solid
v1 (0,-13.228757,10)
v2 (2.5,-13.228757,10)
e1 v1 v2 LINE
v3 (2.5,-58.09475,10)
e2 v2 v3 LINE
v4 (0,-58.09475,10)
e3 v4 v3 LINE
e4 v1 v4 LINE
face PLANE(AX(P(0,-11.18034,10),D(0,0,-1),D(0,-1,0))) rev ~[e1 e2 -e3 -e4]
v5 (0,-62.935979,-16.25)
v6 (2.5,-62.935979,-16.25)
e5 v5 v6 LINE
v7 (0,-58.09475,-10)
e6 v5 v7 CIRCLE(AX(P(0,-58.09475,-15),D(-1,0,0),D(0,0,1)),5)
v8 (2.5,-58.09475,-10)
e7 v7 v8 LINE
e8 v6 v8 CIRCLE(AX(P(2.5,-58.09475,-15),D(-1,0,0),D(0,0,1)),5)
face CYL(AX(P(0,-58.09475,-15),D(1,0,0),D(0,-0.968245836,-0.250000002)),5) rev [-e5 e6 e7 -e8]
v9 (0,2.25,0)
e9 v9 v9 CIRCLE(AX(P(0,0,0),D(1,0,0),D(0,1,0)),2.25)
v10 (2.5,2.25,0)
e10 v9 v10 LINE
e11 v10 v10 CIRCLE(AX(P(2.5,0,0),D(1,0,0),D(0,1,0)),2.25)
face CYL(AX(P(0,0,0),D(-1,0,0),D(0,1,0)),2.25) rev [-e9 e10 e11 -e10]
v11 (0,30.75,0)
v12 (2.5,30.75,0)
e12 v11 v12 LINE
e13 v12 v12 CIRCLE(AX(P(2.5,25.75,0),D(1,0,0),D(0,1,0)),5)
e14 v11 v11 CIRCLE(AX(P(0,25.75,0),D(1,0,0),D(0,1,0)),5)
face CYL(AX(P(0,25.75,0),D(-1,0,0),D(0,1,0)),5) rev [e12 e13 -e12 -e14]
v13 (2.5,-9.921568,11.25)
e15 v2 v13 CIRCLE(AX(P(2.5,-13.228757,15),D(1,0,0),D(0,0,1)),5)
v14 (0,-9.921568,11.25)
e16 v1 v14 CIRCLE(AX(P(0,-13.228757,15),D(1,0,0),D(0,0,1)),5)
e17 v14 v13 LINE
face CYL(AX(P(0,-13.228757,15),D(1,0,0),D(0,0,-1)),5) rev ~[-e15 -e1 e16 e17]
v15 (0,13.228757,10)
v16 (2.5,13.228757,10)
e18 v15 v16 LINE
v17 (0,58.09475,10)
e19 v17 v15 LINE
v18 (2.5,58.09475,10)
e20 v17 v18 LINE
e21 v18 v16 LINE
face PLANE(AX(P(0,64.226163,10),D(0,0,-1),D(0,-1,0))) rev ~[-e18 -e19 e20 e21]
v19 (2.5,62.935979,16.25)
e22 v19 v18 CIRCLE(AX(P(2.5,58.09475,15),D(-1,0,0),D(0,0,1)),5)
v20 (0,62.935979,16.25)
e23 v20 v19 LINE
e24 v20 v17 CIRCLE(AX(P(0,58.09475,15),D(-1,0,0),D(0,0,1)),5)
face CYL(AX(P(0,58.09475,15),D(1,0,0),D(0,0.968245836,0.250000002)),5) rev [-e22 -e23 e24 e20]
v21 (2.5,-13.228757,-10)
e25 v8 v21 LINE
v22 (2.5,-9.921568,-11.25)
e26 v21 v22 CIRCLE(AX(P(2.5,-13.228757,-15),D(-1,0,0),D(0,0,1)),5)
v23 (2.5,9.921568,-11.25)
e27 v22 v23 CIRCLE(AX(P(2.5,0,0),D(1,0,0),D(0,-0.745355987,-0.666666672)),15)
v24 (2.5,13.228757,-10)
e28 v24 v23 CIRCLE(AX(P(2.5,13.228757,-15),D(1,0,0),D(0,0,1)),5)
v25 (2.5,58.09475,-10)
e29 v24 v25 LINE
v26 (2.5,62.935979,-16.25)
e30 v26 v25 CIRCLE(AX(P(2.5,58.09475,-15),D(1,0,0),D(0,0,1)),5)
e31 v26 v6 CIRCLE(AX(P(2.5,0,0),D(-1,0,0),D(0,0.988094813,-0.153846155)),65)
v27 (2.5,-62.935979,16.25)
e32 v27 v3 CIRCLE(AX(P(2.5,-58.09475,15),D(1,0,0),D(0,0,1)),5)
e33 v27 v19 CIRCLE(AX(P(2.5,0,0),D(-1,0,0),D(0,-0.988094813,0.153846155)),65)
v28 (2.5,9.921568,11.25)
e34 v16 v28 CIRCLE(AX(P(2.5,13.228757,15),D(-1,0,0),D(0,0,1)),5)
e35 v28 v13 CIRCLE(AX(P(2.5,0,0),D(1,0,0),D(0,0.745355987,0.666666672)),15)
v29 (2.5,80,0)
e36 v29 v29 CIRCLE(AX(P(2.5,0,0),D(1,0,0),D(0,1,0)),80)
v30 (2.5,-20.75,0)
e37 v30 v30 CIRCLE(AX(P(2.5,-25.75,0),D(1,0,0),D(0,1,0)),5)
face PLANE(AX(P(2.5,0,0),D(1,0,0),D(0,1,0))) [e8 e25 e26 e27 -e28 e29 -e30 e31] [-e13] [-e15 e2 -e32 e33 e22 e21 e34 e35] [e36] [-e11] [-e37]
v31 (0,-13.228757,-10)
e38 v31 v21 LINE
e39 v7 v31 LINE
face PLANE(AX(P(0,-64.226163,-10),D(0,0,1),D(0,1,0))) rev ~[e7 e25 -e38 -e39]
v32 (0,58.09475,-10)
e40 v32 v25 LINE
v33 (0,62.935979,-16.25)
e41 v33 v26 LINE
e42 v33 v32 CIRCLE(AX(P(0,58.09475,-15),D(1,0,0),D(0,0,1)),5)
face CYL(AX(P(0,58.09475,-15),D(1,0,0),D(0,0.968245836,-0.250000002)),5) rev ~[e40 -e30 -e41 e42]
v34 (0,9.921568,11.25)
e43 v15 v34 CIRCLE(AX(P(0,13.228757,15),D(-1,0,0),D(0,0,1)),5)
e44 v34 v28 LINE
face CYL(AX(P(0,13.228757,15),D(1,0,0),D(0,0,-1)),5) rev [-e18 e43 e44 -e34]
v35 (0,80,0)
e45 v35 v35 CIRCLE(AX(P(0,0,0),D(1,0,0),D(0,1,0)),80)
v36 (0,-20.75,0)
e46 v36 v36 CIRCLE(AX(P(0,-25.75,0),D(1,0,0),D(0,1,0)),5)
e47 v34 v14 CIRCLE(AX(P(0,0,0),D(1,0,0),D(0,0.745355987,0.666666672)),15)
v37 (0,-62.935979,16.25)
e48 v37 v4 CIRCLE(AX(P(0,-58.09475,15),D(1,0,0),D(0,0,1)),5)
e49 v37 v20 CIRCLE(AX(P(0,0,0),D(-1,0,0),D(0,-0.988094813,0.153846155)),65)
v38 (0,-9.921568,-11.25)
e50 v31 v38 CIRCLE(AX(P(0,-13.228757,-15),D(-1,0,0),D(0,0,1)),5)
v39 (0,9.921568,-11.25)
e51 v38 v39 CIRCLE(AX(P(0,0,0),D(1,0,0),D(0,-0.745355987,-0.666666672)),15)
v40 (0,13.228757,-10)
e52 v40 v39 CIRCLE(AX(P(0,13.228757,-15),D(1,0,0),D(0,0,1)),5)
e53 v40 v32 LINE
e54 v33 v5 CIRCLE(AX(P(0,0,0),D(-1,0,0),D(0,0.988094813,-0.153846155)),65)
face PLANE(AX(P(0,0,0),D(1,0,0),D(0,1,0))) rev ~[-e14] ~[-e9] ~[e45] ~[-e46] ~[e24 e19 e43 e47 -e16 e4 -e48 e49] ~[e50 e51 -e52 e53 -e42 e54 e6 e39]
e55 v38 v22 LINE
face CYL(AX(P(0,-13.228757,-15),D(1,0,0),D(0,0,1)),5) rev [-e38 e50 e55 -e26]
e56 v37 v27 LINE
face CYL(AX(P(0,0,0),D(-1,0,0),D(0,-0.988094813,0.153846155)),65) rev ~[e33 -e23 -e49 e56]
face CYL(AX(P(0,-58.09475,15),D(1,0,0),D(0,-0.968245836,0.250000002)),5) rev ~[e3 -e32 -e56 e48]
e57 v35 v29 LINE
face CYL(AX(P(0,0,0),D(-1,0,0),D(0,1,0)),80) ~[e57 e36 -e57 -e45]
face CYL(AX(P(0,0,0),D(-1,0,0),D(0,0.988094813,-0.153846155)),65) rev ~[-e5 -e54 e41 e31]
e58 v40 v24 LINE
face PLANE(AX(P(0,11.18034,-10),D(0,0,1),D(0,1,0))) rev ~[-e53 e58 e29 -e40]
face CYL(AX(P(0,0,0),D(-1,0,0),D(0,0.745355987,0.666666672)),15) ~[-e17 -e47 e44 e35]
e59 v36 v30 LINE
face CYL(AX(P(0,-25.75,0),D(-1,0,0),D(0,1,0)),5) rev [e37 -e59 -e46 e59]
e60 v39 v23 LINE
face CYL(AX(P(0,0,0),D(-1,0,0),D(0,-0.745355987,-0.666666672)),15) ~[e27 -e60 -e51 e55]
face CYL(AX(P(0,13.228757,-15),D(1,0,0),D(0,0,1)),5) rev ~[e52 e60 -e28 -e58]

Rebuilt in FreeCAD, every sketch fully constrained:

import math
import FreeCAD as App
import Part
import Sketcher

V = App.Vector


def edges_at(feature, points):
    """Names of the edges that pass closest to the given points."""
    edges = feature.Shape.Edges
    near = lambda p: min(range(len(edges)), key=lambda i: edges[i].distToShape(Part.Vertex(*p))[0])
    return sorted({f"Edge{near(p) + 1}" for p in points})

doc = App.newDocument("Part")
params = doc.addObject("Spreadsheet::Sheet", "Params")
for row, (alias, value) in enumerate([
    ("sketch1_diameter", "160 mm"),
    ("sketch1_diameter2", "10 mm"),
    ("sketch1_radius", "65 mm"),
    ("sketch1_radius2", "15 mm"),
    ("sketch1_diameter3", "4.5 mm"),
    ("pad1_length", "2.5 mm"),
    ("fillet_radius", "5 mm"),
], start=1):
    params.set(f"A{row}", alias)
    params.set(f"B{row}", "=" + value)
    params.setAlias(f"B{row}", alias)

body = doc.addObject("PartDesign::Body", "Body")

sketch1 = doc.addObject("Sketcher::SketchObject", "Sketch")
body.addObject(sketch1)
sketch1.AttachmentSupport = (doc.YZ_Plane, [""])
sketch1.MapMode = "FlatFace"
sketch1.addGeometry([
    Part.Circle(V(0, 0, 0), V(0, 0, 1), 80),
    Part.ArcOfCircle(Part.Circle(V(0, 0, 0), V(0, 0, 1), 65), math.radians(-171.150117), math.radians(-8.849883)),
    Part.LineSegment(V(-64.226163, -10, 0), V(-11.18034, -10, 0)),
    Part.ArcOfCircle(Part.Circle(V(0, 0, 0), V(0, 0, 1), 15), math.radians(-138.189685), math.radians(-41.810315)),
    Part.LineSegment(V(11.18034, -10, 0), V(64.226163, -10, 0)),
    Part.Circle(V(-25.75, 0, 0), V(0, 0, 1), 5),
    Part.Circle(V(0, 0, 0), V(0, 0, 1), 2.25),
    Part.Circle(V(25.75, 0, 0), V(0, 0, 1), 5),
    Part.ArcOfCircle(Part.Circle(V(0, 0, 0), V(0, 0, 1), 65), math.radians(8.849883), math.radians(171.150117)),
    Part.LineSegment(V(64.226163, 10, 0), V(11.18034, 10, 0)),
    Part.ArcOfCircle(Part.Circle(V(0, 0, 0), V(0, 0, 1), 15), math.radians(41.810315), math.radians(138.189685)),
    Part.LineSegment(V(-11.18034, 10, 0), V(-64.226163, 10, 0)),
], False)
sketch1.addConstraint([
    Sketcher.Constraint("Coincident", 1, 1, 2, 1),
    Sketcher.Constraint("Coincident", 2, 2, 3, 1),
    Sketcher.Constraint("Coincident", 3, 2, 4, 1),
    Sketcher.Constraint("Coincident", 4, 2, 1, 2),
    Sketcher.Constraint("Coincident", 8, 1, 9, 1),
    Sketcher.Constraint("Coincident", 9, 2, 10, 1),
    Sketcher.Constraint("Coincident", 10, 2, 11, 1),
    Sketcher.Constraint("Coincident", 11, 2, 8, 2),
    Sketcher.Constraint("Horizontal", 2),
    Sketcher.Constraint("Horizontal", 4),
    Sketcher.Constraint("Horizontal", 9),
    Sketcher.Constraint("Horizontal", 11),
    Sketcher.Constraint("Coincident", 0, 3, -1, 1),
    Sketcher.Constraint("Coincident", 1, 3, -1, 1),
    Sketcher.Constraint("Coincident", 3, 3, -1, 1),
    Sketcher.Constraint("Coincident", 6, 3, -1, 1),
    Sketcher.Constraint("Coincident", 8, 3, -1, 1),
    Sketcher.Constraint("Coincident", 10, 3, -1, 1),
    Sketcher.Constraint("Equal", 5, 7),
    Sketcher.Constraint("Equal", 1, 8),
    Sketcher.Constraint("Equal", 3, 10),
    Sketcher.Constraint("Symmetric", 5, 3, 7, 3, -1, 1),
    Sketcher.Constraint("PointOnObject", 5, 3, -1),
    Sketcher.Constraint("Horizontal", 2, 2, 3, 2),
    Sketcher.Constraint("Horizontal", 9, 2, 10, 2),
    Sketcher.Constraint("Vertical", 4, 2, 8, 1),
    Sketcher.Constraint("Diameter", 0, 160.0),
    Sketcher.Constraint("Diameter", 5, 10.0),
    Sketcher.Constraint("Radius", 1, 65.0),
    Sketcher.Constraint("Radius", 3, 15.0),
    Sketcher.Constraint("Diameter", 6, 4.5),
    Sketcher.Constraint("DistanceY", 1, 1, -1, 1, 10.0),
    Sketcher.Constraint("DistanceX", 5, 3, 7, 3, 51.5),
])
sketch1.setExpression("Constraints[26]", "Params.sketch1_diameter")
sketch1.setExpression("Constraints[27]", "Params.sketch1_diameter2")
sketch1.setExpression("Constraints[28]", "Params.sketch1_radius")
sketch1.setExpression("Constraints[29]", "Params.sketch1_radius2")
sketch1.setExpression("Constraints[30]", "Params.sketch1_diameter3")
pad1 = doc.addObject("PartDesign::Pad", "Pad")
body.addObject(pad1)
pad1.Profile = sketch1
pad1.setExpression("Length", "Params.pad1_length")
doc.recompute()

fillet = doc.addObject("PartDesign::Fillet", "Fillet")
body.addObject(fillet)
fillet.Base = (pad1, edges_at(pad1, [
    (1.25, -64.226, 10),
    (1.25, -11.18, 10),
    (1.25, 11.18, 10),
    (1.25, 64.226, 10),
    (1.25, 64.226, -10),
    (1.25, 11.18, -10),
    (1.25, -11.18, -10),
    (1.25, -64.226, -10),
]))
fillet.setExpression("Radius", "Params.fillet_radius")

doc.recompute()
